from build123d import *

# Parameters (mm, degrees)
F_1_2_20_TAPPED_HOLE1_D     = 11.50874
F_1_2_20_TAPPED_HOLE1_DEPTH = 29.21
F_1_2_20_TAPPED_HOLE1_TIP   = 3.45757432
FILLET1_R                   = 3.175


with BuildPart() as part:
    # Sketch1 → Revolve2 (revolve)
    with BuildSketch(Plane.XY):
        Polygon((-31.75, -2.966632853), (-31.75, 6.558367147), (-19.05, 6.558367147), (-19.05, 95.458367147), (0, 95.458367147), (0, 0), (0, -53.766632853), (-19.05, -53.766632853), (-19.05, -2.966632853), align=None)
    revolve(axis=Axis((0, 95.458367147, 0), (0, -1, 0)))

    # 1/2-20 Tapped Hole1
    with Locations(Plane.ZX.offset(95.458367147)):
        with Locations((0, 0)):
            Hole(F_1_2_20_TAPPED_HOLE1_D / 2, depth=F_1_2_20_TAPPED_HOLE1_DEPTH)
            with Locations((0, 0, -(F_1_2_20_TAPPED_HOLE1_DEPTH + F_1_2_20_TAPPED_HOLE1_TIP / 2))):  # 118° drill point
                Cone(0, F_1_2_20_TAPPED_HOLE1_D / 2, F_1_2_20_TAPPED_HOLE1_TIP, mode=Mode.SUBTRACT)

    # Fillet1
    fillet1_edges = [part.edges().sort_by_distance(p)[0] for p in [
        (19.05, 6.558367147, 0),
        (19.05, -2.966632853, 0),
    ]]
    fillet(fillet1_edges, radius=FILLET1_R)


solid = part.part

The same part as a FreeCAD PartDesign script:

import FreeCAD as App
import Part
import Sketcher

V = App.Vector
Q = App.Units.Quantity


def edges_at(feature, points):
    """Names of the edges that pass closest to the given points."""
    edges = feature.Shape.Edges
    near = lambda p: min(range(len(edges)), key=lambda i: edges[i].distToShape(Part.Vertex(*p))[0])
    return sorted({f"Edge{near(p) + 1}" for p in points})


def add_polygon(sketch, points):
    """Adds a closed chain of lines whose ends are joined by coincident constraints."""
    first, n = sketch.GeometryCount, len(points)
    for a, b in zip(points, points[1:] + points[:1]):
        sketch.addGeometry(Part.LineSegment(App.Vector(*a, 0), App.Vector(*b, 0)), False)
    for i in range(n):
        sketch.addConstraint(Sketcher.Constraint("Coincident", first + i, 2, first + (i + 1) % n, 1))

doc = App.newDocument("Part")
params = doc.addObject("Spreadsheet::Sheet", "Params")
for row, (alias, value) in enumerate([
    ("sketch1_height", "2 in"),
    ("sketch1_width", "0.5 in"),
    ("sketch1_height2", "3.5 in"),
    ("sketch1_width2", "0.75 in"),
    ("sketch1_height3", "0.375 in"),
    ("revolution_angle", "360 deg"),
    ("hole_diameter", "0.4531 in"),
    ("hole_depth", "1.15 in"),
    ("fillet_radius", "0.125 in"),
], start=1):
    params.set(f"A{row}", alias)
    params.set(f"B{row}", "=" + value)
    params.setAlias(f"B{row}", alias)

body = doc.addObject("PartDesign::Body", "Body")

# Sketch on XY plane
sketch1 = body.newObject("Sketcher::SketchObject", "Sketch")
sketch1.AttachmentSupport = (doc.getObject("XY_Plane"), [""])
sketch1.MapMode = "FlatFace"
add_polygon(sketch1, [(-32, 7), (-32, -3), (-19, -3), (-19, -54), (0, -54), (0, 95), (-19, 95), (-19, 7)])  # lines 0-7
sketch1.addConstraint(Sketcher.Constraint("Vertical", 0))
sketch1.addConstraint(Sketcher.Constraint("Horizontal", 1))
sketch1.addConstraint(Sketcher.Constraint("Vertical", 2))
sketch1.addConstraint(Sketcher.Constraint("Horizontal", 3))
sketch1.addConstraint(Sketcher.Constraint("Vertical", 4))
sketch1.addConstraint(Sketcher.Constraint("Horizontal", 5))
sketch1.addConstraint(Sketcher.Constraint("Vertical", 6))
sketch1.addConstraint(Sketcher.Constraint("Horizontal", 7))
sketch1.addConstraint(Sketcher.Constraint("PointOnObject", 3, 2, -2))
sketch1.addConstraint(Sketcher.Constraint("Vertical", 2, 2, 5, 2))
sketch1.addConstraint(Sketcher.Constraint("DistanceY", 2, 2, 2, 1, Q("2 in")))
sketch1.addConstraint(Sketcher.Constraint("DistanceX", 1, 1, 1, 2, Q("0.5 in")))
sketch1.addConstraint(Sketcher.Constraint("DistanceY", 6, 2, 6, 1, Q("3.5 in")))
sketch1.addConstraint(Sketcher.Constraint("DistanceX", 3, 1, 3, 2, Q("0.75 in")))
sketch1.addConstraint(Sketcher.Constraint("DistanceY", 0, 2, 0, 1, Q("0.375 in")))
sketch1.addConstraint(Sketcher.Constraint("DistanceY", 0, 2, -1, 1, Q("2.966633 mm")))
sketch1.setExpression("Constraints[18]", "Params.sketch1_height")
sketch1.setExpression("Constraints[19]", "Params.sketch1_width")
sketch1.setExpression("Constraints[20]", "Params.sketch1_height2")
sketch1.setExpression("Constraints[21]", "Params.sketch1_width2")
sketch1.setExpression("Constraints[22]", "Params.sketch1_height3")
revolution = body.newObject("PartDesign::Revolution", "Revolution")
revolution.Profile = sketch1
revolution.ReferenceAxis = (sketch1, ["V_Axis"])
revolution.setExpression("Angle", "Params.revolution_angle")

# Sketch on XZ plane
sketch2 = body.newObject("Sketcher::SketchObject", "Sketch001")
sketch2.AttachmentSupport = (doc.getObject("XZ_Plane"), [""])
sketch2.MapMode = "FlatFace"
sketch2.AttachmentOffset = App.Placement(V(0, 0, -95.458367), App.Rotation())
sketch2.addGeometry(Part.Circle(V(0, 0, 0), V(0, 0, 1), 6), False)
sketch2.addConstraint(Sketcher.Constraint("Coincident", 0, 3, -1, 1))
sketch2.addConstraint(Sketcher.Constraint("Diameter", 0, Q("0.4531 in")))
doc.recompute()
hole = body.newObject("PartDesign::Hole", "Hole")
hole.Profile = sketch2
hole.ThreadType = "None"
hole.setExpression("Diameter", "Params.hole_diameter")
hole.DepthType = "Dimension"
hole.setExpression("Depth", "Params.hole_depth")
hole.DrillPoint = "Angled"
hole.DrillPointAngle = 118
hole.Reversed = True
doc.recompute()

fillet = body.newObject("PartDesign::Fillet", "Fillet")
fillet.Base = (hole, edges_at(hole, [(19.05, 6.558, 0), (19.05, -2.967, 0)]))
fillet.setExpression("Radius", "Params.fillet_radius")

doc.recompute()
